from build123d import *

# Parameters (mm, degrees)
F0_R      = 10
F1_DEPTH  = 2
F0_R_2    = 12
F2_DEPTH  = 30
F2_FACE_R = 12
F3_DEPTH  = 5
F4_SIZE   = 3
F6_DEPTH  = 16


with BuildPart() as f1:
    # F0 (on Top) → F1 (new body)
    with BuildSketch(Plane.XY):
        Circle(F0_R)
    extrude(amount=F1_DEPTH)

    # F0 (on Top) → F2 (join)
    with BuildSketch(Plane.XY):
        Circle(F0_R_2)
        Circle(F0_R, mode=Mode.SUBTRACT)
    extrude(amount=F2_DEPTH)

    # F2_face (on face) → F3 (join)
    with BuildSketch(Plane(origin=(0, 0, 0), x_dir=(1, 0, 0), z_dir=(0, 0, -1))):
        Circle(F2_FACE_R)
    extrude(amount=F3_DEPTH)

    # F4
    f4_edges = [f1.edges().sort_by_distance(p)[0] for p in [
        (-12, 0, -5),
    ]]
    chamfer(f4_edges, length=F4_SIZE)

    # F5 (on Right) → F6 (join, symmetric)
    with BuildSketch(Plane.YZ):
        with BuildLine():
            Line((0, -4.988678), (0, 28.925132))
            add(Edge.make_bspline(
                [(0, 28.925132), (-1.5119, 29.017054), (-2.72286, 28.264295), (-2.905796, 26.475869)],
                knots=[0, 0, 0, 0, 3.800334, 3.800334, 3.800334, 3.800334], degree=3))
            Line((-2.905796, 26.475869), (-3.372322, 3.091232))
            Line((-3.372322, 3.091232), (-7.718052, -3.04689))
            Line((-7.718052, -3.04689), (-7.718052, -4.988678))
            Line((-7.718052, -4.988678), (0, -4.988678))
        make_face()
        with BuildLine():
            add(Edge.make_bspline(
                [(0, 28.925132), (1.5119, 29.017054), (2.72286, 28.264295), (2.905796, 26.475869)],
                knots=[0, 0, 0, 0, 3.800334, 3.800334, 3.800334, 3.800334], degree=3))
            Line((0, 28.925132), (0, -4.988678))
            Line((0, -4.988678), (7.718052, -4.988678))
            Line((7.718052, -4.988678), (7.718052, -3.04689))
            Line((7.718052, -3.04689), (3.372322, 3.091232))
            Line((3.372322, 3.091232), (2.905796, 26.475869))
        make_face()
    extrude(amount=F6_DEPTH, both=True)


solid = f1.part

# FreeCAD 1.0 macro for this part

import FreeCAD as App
import Part
import Sketcher

V = App.Vector


def edges_at(feature, points):
    """Names of the edges that pass closest to the given points."""
    edges = feature.Shape.Edges
    near = lambda p: min(range(len(edges)), key=lambda i: edges[i].distToShape(Part.Vertex(*p))[0])
    return sorted({f"Edge{near(p) + 1}" for p in points})

doc = App.newDocument("Part")
body = doc.addObject("PartDesign::Body", "Body")

sketch1 = body.newObject("Sketcher::SketchObject", "Sketch")
sketch1.AttachmentSupport = (doc.getObject("XY_Plane"), [""])
sketch1.MapMode = "FlatFace"
sketch1.addGeometry(Part.Circle(V(0, 0, 0), V(0, 0, 1), 10), False)
sketch1.addConstraint(Sketcher.Constraint("Coincident", 0, 3, -1, 1))
sketch1.addConstraint(Sketcher.Constraint("Diameter", 0, 20.0))
pad1 = body.newObject("PartDesign::Pad", "Pad")
pad1.Profile = sketch1
pad1.Length = 2

sketch2 = body.newObject("Sketcher::SketchObject", "Sketch001")
sketch2.AttachmentSupport = (doc.getObject("XY_Plane"), [""])
sketch2.MapMode = "FlatFace"
sketch2.addGeometry(Part.Circle(V(0, 0, 0), V(0, 0, 1), 12), False)
sketch2.addGeometry(Part.Circle(V(0, 0, 0), V(0, 0, 1), 10), False)
sketch2.addConstraint(Sketcher.Constraint("Coincident", 0, 3, -1, 1))
sketch2.addConstraint(Sketcher.Constraint("Coincident", 1, 3, -1, 1))
sketch2.addConstraint(Sketcher.Constraint("Diameter", 0, 24.0))
sketch2.addConstraint(Sketcher.Constraint("Diameter", 1, 20.0))
pad2 = body.newObject("PartDesign::Pad", "Pad001")
pad2.Profile = sketch2
pad2.Length = 30

sketch3 = body.newObject("Sketcher::SketchObject", "Sketch002")
sketch3.AttachmentSupport = (doc.getObject("XY_Plane"), [""])
sketch3.MapMode = "FlatFace"
sketch3.addGeometry(Part.Circle(V(0, 0, 0), V(0, 0, 1), 12), False)
sketch3.addConstraint(Sketcher.Constraint("Coincident", 0, 3, -1, 1))
sketch3.addConstraint(Sketcher.Constraint("Diameter", 0, 24.0))
pad3 = body.newObject("PartDesign::Pad", "Pad002")
pad3.Profile = sketch3
pad3.Length = 5
pad3.Reversed = True
doc.recompute()

chamfer = body.newObject("PartDesign::Chamfer", "Chamfer")
chamfer.Base = (pad3, edges_at(pad3, [(-12, 0, -5)]))
chamfer.Size = 3

sketch4 = body.newObject("Sketcher::SketchObject", "Sketch003")
sketch4.AttachmentSupport = (doc.getObject("YZ_Plane"), [""])
sketch4.MapMode = "FlatFace"
sketch4.addGeometry(Part.BSplineCurve([V(0, 28.925132, 0), V(-1.5119, 29.017054, 0), V(-2.72286, 28.264295, 0), V(-2.905796, 26.475869, 0)], [4, 4], [0, 3.800334], False, 3, [1, 1, 1, 1], False), False)
sketch4.addGeometry(Part.LineSegment(V(-2.905796, 26.475869, 0), V(-3.372322, 3.091232, 0)), False)
sketch4.addGeometry(Part.LineSegment(V(-3.372322, 3.091232, 0), V(-7.718052, -3.04689, 0)), False)
sketch4.addGeometry(Part.LineSegment(V(-7.718052, -3.04689, 0), V(-7.718052, -4.988678, 0)), False)
sketch4.addGeometry(Part.LineSegment(V(-7.718052, -4.988678, 0), V(7.718052, -4.988678, 0)), False)
sketch4.addGeometry(Part.LineSegment(V(7.718052, -4.988678, 0), V(7.718052, -3.04689, 0)), False)
sketch4.addGeometry(Part.LineSegment(V(7.718052, -3.04689, 0), V(3.372322, 3.091232, 0)), False)
sketch4.addGeometry(Part.LineSegment(V(3.372322, 3.091232, 0), V(2.905796, 26.475869, 0)), False)
sketch4.addGeometry(Part.BSplineCurve([V(0, 28.925132, 0), V(1.5119, 29.017054, 0), V(2.72286, 28.264295, 0), V(2.905796, 26.475869, 0)], [4, 4], [0, 3.800334], False, 3, [1, 1, 1, 1], False), False)
sketch4.addConstraint(Sketcher.Constraint("Block", 0))
sketch4.addConstraint(Sketcher.Constraint("Block", 8))
sketch4.addConstraint(Sketcher.Constraint("Coincident", 0, 2, 1, 1))
sketch4.addConstraint(Sketcher.Constraint("Coincident", 1, 2, 2, 1))
sketch4.addConstraint(Sketcher.Constraint("Coincident", 2, 2, 3, 1))
sketch4.addConstraint(Sketcher.Constraint("Coincident", 3, 2, 4, 1))
sketch4.addConstraint(Sketcher.Constraint("Coincident", 4, 2, 5, 1))
sketch4.addConstraint(Sketcher.Constraint("Coincident", 5, 2, 6, 1))
sketch4.addConstraint(Sketcher.Constraint("Coincident", 6, 2, 7, 1))
sketch4.addConstraint(Sketcher.Constraint("Coincident", 7, 2, 8, 2))
sketch4.addConstraint(Sketcher.Constraint("Vertical", 3))
sketch4.addConstraint(Sketcher.Constraint("Horizontal", 4))
sketch4.addConstraint(Sketcher.Constraint("Vertical", 5))
sketch4.addConstraint(Sketcher.Constraint("Symmetric", 2, 2, 5, 2, -2))
sketch4.addConstraint(Sketcher.Constraint("Symmetric", 1, 2, 6, 2, -2))
sketch4.addConstraint(Sketcher.Constraint("DistanceY", 3, 2, 3, 1, 1.941788))
sketch4.addConstraint(Sketcher.Constraint("Distance", 1, 23.38929))
sketch4.addConstraint(Sketcher.Constraint("DistanceX", 4, 1, 4, 2, 15.436104))
sketch4.addConstraint(Sketcher.Constraint("DistanceX", 1, 2, -1, 1, 3.372322))
sketch4.addConstraint(Sketcher.Constraint("DistanceY", 2, 2, -1, 1, 3.04689))
pad4 = body.newObject("PartDesign::Pad", "Pad003")
pad4.Profile = sketch4
pad4.Length = 32
pad4.Midplane = True

doc.recompute()
